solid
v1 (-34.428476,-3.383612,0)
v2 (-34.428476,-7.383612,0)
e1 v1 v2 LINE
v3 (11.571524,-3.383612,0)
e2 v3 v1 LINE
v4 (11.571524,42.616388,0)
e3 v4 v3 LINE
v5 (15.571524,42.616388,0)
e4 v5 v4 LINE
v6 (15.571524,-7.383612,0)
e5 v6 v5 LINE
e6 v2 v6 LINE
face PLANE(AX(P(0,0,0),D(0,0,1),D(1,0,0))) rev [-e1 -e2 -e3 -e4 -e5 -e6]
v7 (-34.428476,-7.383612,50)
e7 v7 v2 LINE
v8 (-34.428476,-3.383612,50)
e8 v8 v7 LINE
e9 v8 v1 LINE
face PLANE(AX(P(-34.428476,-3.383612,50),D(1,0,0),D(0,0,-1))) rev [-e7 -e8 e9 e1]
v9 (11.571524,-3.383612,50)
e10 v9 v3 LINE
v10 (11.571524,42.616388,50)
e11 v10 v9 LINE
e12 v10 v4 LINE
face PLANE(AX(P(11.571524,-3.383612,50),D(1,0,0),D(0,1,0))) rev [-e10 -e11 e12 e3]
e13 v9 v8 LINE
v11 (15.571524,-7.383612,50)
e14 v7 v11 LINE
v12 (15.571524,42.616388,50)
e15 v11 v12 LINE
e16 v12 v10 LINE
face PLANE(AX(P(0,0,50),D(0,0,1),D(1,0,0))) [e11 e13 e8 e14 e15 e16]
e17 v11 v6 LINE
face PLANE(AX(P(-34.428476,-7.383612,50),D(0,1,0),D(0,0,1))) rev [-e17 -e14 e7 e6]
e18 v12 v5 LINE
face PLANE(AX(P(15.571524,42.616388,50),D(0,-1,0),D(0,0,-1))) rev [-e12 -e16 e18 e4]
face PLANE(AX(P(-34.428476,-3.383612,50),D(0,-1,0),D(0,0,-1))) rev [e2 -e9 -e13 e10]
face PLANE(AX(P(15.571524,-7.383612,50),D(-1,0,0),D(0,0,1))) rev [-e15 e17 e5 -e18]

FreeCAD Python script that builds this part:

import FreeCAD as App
import Part
import Sketcher


def add_polygon(sketch, points):
    """Adds a closed chain of lines whose ends are joined by coincident constraints."""
    first, n = sketch.GeometryCount, len(points)
    for a, b in zip(points, points[1:] + points[:1]):
        sketch.addGeometry(Part.LineSegment(App.Vector(*a, 0), App.Vector(*b, 0)), False)
    for i in range(n):
        sketch.addConstraint(Sketcher.Constraint("Coincident", first + i, 2, first + (i + 1) % n, 1))

doc = App.newDocument("Part")
body = doc.addObject("PartDesign::Body", "Body")

sketch1 = body.newObject("Sketcher::SketchObject", "Sketch")
sketch1.AttachmentSupport = (doc.getObject("XY_Plane"), [""])
sketch1.MapMode = "FlatFace"
add_polygon(sketch1, [(-34.428476, -7.383612), (15.571524, -7.383612), (15.571524, 42.616388), (11.571524, 42.616388), (11.571524, -3.383612), (-34.428476, -3.383612)])
sketch1.addConstraint([
    Sketcher.Constraint("Horizontal", 0),
    Sketcher.Constraint("Vertical", 1),
    Sketcher.Constraint("Horizontal", 2),
    Sketcher.Constraint("Vertical", 3),
    Sketcher.Constraint("Horizontal", 4),
    Sketcher.Constraint("Vertical", 5),
    Sketcher.Constraint("Equal", 0, 1),
    Sketcher.Constraint("Equal", 4, 3),
    Sketcher.Constraint("DistanceX", 0, 1, 0, 2, 50.0),
    Sketcher.Constraint("DistanceX", 2, 2, 2, 1, 4.0),
    Sketcher.Constraint("DistanceX", -1, 1, 0, 2, 15.571524),
    Sketcher.Constraint("DistanceY", 0, 2, -1, 1, 7.383612),
])
pad1 = body.newObject("PartDesign::Pad", "Pad")
pad1.Profile = sketch1
pad1.Length = 50

doc.recompute()
